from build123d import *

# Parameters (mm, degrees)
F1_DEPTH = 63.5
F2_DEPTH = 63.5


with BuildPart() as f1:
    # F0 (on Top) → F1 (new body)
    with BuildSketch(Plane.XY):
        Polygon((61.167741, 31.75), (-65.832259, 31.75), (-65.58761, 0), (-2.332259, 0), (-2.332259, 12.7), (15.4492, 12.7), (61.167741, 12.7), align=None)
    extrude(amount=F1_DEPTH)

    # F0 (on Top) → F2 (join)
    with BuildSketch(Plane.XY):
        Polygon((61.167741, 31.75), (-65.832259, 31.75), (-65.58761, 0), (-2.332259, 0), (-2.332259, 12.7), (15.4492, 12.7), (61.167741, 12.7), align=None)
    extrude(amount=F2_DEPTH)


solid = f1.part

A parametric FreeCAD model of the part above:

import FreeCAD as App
import Part
import Sketcher
Q = App.Units.Quantity

doc = App.newDocument("Part")
body = doc.addObject("PartDesign::Body", "Body")

# Sketch on XY plane
sketch1 = body.newObject("Sketcher::SketchObject", "Sketch")
sketch1.AttachmentSupport = (doc.getObject("XY_Plane"), [""])
sketch1.MapMode = "FlatFace"
sketch1.addGeometry([
    Part.LineSegment(App.Vector(61, 32, 0), App.Vector(-66, 32, 0)),  # 0
    Part.LineSegment(App.Vector(-66, 32, 0), App.Vector(-66, 0, 0)),  # 1
    Part.LineSegment(App.Vector(-66, 0, 0), App.Vector(-2, 0, 0)),  # 2
    Part.LineSegment(App.Vector(-2, 0, 0), App.Vector(-2, 13, 0)),  # 3
    Part.LineSegment(App.Vector(-2, 13, 0), App.Vector(61, 13, 0)),  # 4
    Part.LineSegment(App.Vector(61, 13, 0), App.Vector(61, 32, 0)),  # 5
], False)
sketch1.addConstraint([
    Sketcher.Constraint("Coincident", 0, 2, 1, 1),
    Sketcher.Constraint("Coincident", 1, 2, 2, 1),
    Sketcher.Constraint("Coincident", 2, 2, 3, 1),
    Sketcher.Constraint("Coincident", 3, 2, 4, 1),
    Sketcher.Constraint("Coincident", 4, 2, 5, 1),
    Sketcher.Constraint("Coincident", 5, 2, 0, 1),
    Sketcher.Constraint("Horizontal", 0),
    Sketcher.Constraint("Horizontal", 2),
    Sketcher.Constraint("Vertical", 3),
    Sketcher.Constraint("Horizontal", 4),
    Sketcher.Constraint("Vertical", 5),
    Sketcher.Constraint("PointOnObject", 1, 2, -1),
    Sketcher.Constraint("DistanceX", 0, 2, 0, 1, Q("5 in")),
    Sketcher.Constraint("DistanceX", 4, 1, 4, 2, Q("2.5 in")),
    Sketcher.Constraint("DistanceY", 3, 1, 3, 2, Q("0.5 in")),
    Sketcher.Constraint("DistanceY", 5, 1, 5, 2, Q("0.75 in")),
    Sketcher.Constraint("DistanceX", 2, 1, 2, 2, Q("63.255351 mm")),
    Sketcher.Constraint("DistanceX", 0, 2, -1, 1, Q("65.832259 mm")),
])
pad1 = body.newObject("PartDesign::Pad", "Pad")
pad1.Profile = sketch1
pad1.Length = Q("2.5 in")

# Sketch on XY plane
sketch2 = body.newObject("Sketcher::SketchObject", "Sketch001")
sketch2.AttachmentSupport = (doc.getObject("XY_Plane"), [""])
sketch2.MapMode = "FlatFace"
sketch2.addGeometry([
    Part.LineSegment(App.Vector(61, 32, 0), App.Vector(-66, 32, 0)),  # 0
    Part.LineSegment(App.Vector(-66, 32, 0), App.Vector(-66, 0, 0)),  # 1
    Part.LineSegment(App.Vector(-66, 0, 0), App.Vector(-2, 0, 0)),  # 2
    Part.LineSegment(App.Vector(-2, 0, 0), App.Vector(-2, 13, 0)),  # 3
    Part.LineSegment(App.Vector(-2, 13, 0), App.Vector(61, 13, 0)),  # 4
    Part.LineSegment(App.Vector(61, 13, 0), App.Vector(61, 32, 0)),  # 5
], False)
sketch2.addConstraint([
    Sketcher.Constraint("Coincident", 0, 2, 1, 1),
    Sketcher.Constraint("Coincident", 1, 2, 2, 1),
    Sketcher.Constraint("Coincident", 2, 2, 3, 1),
    Sketcher.Constraint("Coincident", 3, 2, 4, 1),
    Sketcher.Constraint("Coincident", 4, 2, 5, 1),
    Sketcher.Constraint("Coincident", 5, 2, 0, 1),
    Sketcher.Constraint("Horizontal", 0),
    Sketcher.Constraint("Horizontal", 2),
    Sketcher.Constraint("Vertical", 3),
    Sketcher.Constraint("Horizontal", 4),
    Sketcher.Constraint("Vertical", 5),
    Sketcher.Constraint("PointOnObject", 1, 2, -1),
    Sketcher.Constraint("DistanceX", 0, 2, 0, 1, Q("5 in")),
    Sketcher.Constraint("DistanceX", 4, 1, 4, 2, Q("2.5 in")),
    Sketcher.Constraint("DistanceY", 3, 1, 3, 2, Q("0.5 in")),
    Sketcher.Constraint("DistanceY", 5, 1, 5, 2, Q("0.75 in")),
    Sketcher.Constraint("DistanceX", 2, 1, 2, 2, Q("63.255351 mm")),
    Sketcher.Constraint("DistanceX", 0, 2, -1, 1, Q("65.832259 mm")),
])
pad2 = body.newObject("PartDesign::Pad", "Pad001")
pad2.Profile = sketch2
pad2.Length = Q("2.5 in")

doc.recompute()
